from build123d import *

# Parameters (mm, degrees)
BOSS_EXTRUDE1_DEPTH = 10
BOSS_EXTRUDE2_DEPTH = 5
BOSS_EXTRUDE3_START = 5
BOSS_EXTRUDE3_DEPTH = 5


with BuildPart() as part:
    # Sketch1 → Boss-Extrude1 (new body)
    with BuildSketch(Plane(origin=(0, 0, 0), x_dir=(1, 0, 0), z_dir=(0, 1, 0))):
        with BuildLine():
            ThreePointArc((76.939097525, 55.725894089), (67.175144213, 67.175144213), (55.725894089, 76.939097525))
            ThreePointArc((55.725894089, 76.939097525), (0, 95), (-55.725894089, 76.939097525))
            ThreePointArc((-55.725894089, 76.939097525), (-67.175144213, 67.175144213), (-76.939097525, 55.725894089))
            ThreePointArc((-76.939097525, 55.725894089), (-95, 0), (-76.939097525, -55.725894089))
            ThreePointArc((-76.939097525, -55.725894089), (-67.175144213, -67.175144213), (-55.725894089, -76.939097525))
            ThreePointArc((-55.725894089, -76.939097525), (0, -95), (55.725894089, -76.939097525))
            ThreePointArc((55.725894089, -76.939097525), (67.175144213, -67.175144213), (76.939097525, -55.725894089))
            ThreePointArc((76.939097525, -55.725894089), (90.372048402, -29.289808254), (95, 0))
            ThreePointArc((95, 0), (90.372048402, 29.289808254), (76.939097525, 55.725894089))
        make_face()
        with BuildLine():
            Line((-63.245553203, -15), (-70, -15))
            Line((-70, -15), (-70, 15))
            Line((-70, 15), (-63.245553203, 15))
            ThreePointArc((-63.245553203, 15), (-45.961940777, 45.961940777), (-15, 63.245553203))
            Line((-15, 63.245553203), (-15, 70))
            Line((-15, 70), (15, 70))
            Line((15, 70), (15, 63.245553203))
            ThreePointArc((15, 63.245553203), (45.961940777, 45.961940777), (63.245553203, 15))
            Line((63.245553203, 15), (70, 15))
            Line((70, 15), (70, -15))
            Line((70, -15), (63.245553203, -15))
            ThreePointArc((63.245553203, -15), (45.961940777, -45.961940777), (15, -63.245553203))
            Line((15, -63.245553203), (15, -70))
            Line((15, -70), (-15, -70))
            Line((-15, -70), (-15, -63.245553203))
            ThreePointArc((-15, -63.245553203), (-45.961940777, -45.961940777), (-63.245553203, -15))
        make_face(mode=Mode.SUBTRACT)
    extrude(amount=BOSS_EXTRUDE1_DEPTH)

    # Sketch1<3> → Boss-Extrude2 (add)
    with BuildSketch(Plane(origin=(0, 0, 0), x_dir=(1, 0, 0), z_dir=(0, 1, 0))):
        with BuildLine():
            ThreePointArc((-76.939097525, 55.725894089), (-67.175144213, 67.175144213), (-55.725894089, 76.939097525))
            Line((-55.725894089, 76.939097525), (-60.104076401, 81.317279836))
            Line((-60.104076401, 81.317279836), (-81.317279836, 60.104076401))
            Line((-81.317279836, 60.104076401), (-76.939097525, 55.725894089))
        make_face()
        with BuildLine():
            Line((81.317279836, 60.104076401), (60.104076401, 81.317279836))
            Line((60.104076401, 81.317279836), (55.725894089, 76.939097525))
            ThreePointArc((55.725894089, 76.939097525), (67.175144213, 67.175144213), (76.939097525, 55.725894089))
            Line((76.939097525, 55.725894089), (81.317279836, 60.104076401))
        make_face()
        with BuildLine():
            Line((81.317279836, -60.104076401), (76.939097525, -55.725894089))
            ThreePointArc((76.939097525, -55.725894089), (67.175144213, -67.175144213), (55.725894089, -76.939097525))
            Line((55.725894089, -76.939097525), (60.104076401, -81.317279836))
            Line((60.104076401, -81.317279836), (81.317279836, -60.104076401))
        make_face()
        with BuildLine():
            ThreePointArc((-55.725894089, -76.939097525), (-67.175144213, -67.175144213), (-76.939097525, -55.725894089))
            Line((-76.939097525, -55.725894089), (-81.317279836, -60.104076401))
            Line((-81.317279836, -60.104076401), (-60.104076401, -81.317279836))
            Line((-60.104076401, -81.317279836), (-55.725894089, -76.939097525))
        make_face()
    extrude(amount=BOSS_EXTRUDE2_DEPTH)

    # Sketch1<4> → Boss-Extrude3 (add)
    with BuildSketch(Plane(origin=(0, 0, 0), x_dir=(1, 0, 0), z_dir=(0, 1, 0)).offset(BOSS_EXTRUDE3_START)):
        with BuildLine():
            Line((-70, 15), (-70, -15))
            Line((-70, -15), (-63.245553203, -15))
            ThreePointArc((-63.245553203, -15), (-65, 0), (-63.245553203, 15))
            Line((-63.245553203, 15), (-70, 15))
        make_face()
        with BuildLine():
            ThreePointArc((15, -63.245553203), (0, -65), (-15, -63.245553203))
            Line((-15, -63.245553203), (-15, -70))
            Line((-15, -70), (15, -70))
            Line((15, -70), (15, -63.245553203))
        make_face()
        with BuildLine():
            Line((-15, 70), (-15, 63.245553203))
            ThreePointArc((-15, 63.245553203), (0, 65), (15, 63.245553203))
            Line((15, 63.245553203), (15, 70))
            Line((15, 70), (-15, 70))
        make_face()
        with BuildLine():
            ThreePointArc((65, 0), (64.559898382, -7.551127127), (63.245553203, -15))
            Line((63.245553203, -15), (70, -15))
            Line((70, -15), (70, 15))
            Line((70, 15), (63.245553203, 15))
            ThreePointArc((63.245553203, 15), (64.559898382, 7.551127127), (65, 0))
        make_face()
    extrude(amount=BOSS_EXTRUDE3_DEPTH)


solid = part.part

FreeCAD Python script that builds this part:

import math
import FreeCAD as App
import Part
import Sketcher
from FreeCAD import Vector
Q = App.Units.Quantity

doc = App.newDocument("Part")
body = doc.addObject("PartDesign::Body", "Body")

# Sketch on XZ plane
sketch1 = body.newObject("Sketcher::SketchObject", "Sketch")
sketch1.AttachmentSupport = (doc.getObject("XZ_Plane"), [""])
sketch1.MapMode = "FlatFace"
sketch1.addGeometry([
    Part.ArcOfCircle(Part.Circle(Vector(0, 0, 0), Vector(0, 0, 1), 95), math.radians(-54.08), math.radians(-35.92)),  # 0
    Part.ArcOfCircle(Part.Circle(Vector(0, 0, 0), Vector(0, 0, 1), 95), math.radians(-126), math.radians(-54)),  # 1
    Part.ArcOfCircle(Part.Circle(Vector(0, 0, 0), Vector(0, 0, 1), 95), math.radians(-144.08), math.radians(-125.92)),  # 2
    Part.ArcOfCircle(Part.Circle(Vector(0, 0, 0), Vector(0, 0, 1), 95), math.radians(144), math.radians(216)),  # 3
    Part.ArcOfCircle(Part.Circle(Vector(0, 0, 0), Vector(0, 0, 1), 95), math.radians(125.92), math.radians(144.08)),  # 4
    Part.ArcOfCircle(Part.Circle(Vector(0, 0, 0), Vector(0, 0, 1), 95), math.radians(54), math.radians(126)),  # 5
    Part.ArcOfCircle(Part.Circle(Vector(0, 0, 0), Vector(0, 0, 1), 95), math.radians(35.92), math.radians(54.08)),  # 6
    Part.ArcOfCircle(Part.Circle(Vector(0, 0, 0), Vector(0, 0, 1), 95), math.radians(0), math.radians(36)),  # 7
    Part.ArcOfCircle(Part.Circle(Vector(0, 0, 0), Vector(0, 0, 1), 95), math.radians(-36), math.radians(0)),  # 8
    Part.ArcOfCircle(Part.Circle(Vector(0, 0, 0), Vector(0, 0, 1), 65), math.radians(103), math.radians(167)),  # 9
    Part.LineSegment(Vector(-63, 15, 0), Vector(-70, 15, 0)),  # 10
    Part.LineSegment(Vector(-70, 15, 0), Vector(-70, -15, 0)),  # 11
    Part.LineSegment(Vector(-70, -15, 0), Vector(-63, -15, 0)),  # 12
    Part.ArcOfCircle(Part.Circle(Vector(0, 0, 0), Vector(0, 0, 1), 65), math.radians(-167), math.radians(-103)),  # 13
    Part.LineSegment(Vector(-15, -63, 0), Vector(-15, -70, 0)),  # 14
    Part.LineSegment(Vector(-15, -70, 0), Vector(15, -70, 0)),  # 15
    Part.LineSegment(Vector(15, -70, 0), Vector(15, -63, 0)),  # 16
    Part.ArcOfCircle(Part.Circle(Vector(0, 0, 0), Vector(0, 0, 1), 65), math.radians(-77), math.radians(-13)),  # 17
    Part.LineSegment(Vector(63, -15, 0), Vector(70, -15, 0)),  # 18
    Part.LineSegment(Vector(70, -15, 0), Vector(70, 15, 0)),  # 19
    Part.LineSegment(Vector(70, 15, 0), Vector(63, 15, 0)),  # 20
    Part.ArcOfCircle(Part.Circle(Vector(0, 0, 0), Vector(0, 0, 1), 65), math.radians(13), math.radians(77)),  # 21
    Part.LineSegment(Vector(15, 63, 0), Vector(15, 70, 0)),  # 22
    Part.LineSegment(Vector(15, 70, 0), Vector(-15, 70, 0)),  # 23
    Part.LineSegment(Vector(-15, 70, 0), Vector(-15, 63, 0)),  # 24
], False)
sketch1.addConstraint([
    Sketcher.Constraint("Tangent", 0, 1, 1, 2),
    Sketcher.Constraint("Tangent", 1, 1, 2, 2),
    Sketcher.Constraint("Tangent", 2, 1, 3, 2),
    Sketcher.Constraint("Tangent", 3, 1, 4, 2),
    Sketcher.Constraint("Tangent", 4, 1, 5, 2),
    Sketcher.Constraint("Tangent", 5, 1, 6, 2),
    Sketcher.Constraint("Tangent", 6, 1, 7, 2),
    Sketcher.Constraint("Tangent", 7, 1, 8, 2),
    Sketcher.Constraint("Tangent", 8, 1, 0, 2),
    Sketcher.Constraint("Coincident", 9, 2, 10, 1),
    Sketcher.Constraint("Coincident", 10, 2, 11, 1),
    Sketcher.Constraint("Coincident", 11, 2, 12, 1),
    Sketcher.Constraint("Coincident", 12, 2, 13, 1),
    Sketcher.Constraint("Coincident", 13, 2, 14, 1),
    Sketcher.Constraint("Coincident", 14, 2, 15, 1),
    Sketcher.Constraint("Coincident", 15, 2, 16, 1),
    Sketcher.Constraint("Coincident", 16, 2, 17, 1),
    Sketcher.Constraint("Coincident", 17, 2, 18, 1),
    Sketcher.Constraint("Coincident", 18, 2, 19, 1),
    Sketcher.Constraint("Coincident", 19, 2, 20, 1),
    Sketcher.Constraint("Coincident", 20, 2, 21, 1),
    Sketcher.Constraint("Coincident", 21, 2, 22, 1),
    Sketcher.Constraint("Coincident", 22, 2, 23, 1),
    Sketcher.Constraint("Coincident", 23, 2, 24, 1),
    Sketcher.Constraint("Coincident", 24, 2, 9, 1),
    Sketcher.Constraint("Horizontal", 10),
    Sketcher.Constraint("Vertical", 11),
    Sketcher.Constraint("Horizontal", 12),
    Sketcher.Constraint("Vertical", 14),
    Sketcher.Constraint("Horizontal", 15),
    Sketcher.Constraint("Vertical", 16),
    Sketcher.Constraint("Horizontal", 18),
    Sketcher.Constraint("Vertical", 19),
    Sketcher.Constraint("Horizontal", 20),
    Sketcher.Constraint("Vertical", 22),
    Sketcher.Constraint("Horizontal", 23),
    Sketcher.Constraint("Vertical", 24),
    Sketcher.Constraint("Coincident", 0, 3, -1, 1),
    Sketcher.Constraint("Coincident", 2, 3, -1, 1),
    Sketcher.Constraint("Coincident", 4, 3, -1, 1),
    Sketcher.Constraint("Coincident", 6, 3, -1, 1),
    Sketcher.Constraint("Coincident", 9, 3, -1, 1),
    Sketcher.Constraint("Coincident", 13, 3, -1, 1),
    Sketcher.Constraint("Coincident", 17, 3, -1, 1),
    Sketcher.Constraint("Coincident", 21, 3, -1, 1),
    Sketcher.Constraint("Equal", 9, 13),
    Sketcher.Constraint("Equal", 13, 17),
    Sketcher.Constraint("Equal", 17, 21),
    Sketcher.Constraint("Symmetric", 10, 2, 18, 2, -1, 1),
    Sketcher.Constraint("Symmetric", 14, 2, 22, 2, -1, 1),
    Sketcher.Constraint("PointOnObject", 7, 1, -1),
    Sketcher.Constraint("Horizontal", 0, 1, 1, 1),
    Sketcher.Constraint("Horizontal", 4, 1, 5, 1),
    Sketcher.Constraint("Horizontal", 3, 1, 6, 1),
    Sketcher.Constraint("Horizontal", 2, 1, 8, 1),
    Sketcher.Constraint("Horizontal", 13, 2, 16, 2),
    Sketcher.Constraint("Horizontal", 12, 2, 17, 2),
    Sketcher.Constraint("Horizontal", 10, 2, 19, 2),
    Sketcher.Constraint("Horizontal", 21, 2, 24, 2),
    Sketcher.Constraint("Vertical", 2, 1, 3, 1),
    Sketcher.Constraint("Vertical", 1, 1, 4, 1),
    Sketcher.Constraint("Equal", 23, 11),
    Sketcher.Constraint("Equal", 20, 14),
    Sketcher.Constraint("Radius", 0, Q("95 mm")),
    Sketcher.Constraint("Radius", 9, Q("65 mm")),
    Sketcher.Constraint("DistanceX", 15, 1, 15, 2, Q("30 mm")),
    Sketcher.Constraint("DistanceX", 10, 2, -1, 1, Q("70 mm")),
    Sketcher.Constraint("DistanceX", 9, 2, 4, 1, Q("7.519659 mm")),
    Sketcher.Constraint("DistanceY", 13, 2, 2, 1, Q("7.519659 mm")),
])
pad1 = body.newObject("PartDesign::Pad", "Pad")
pad1.Profile = sketch1
pad1.Length = 10
pad1.Reversed = True

# Sketch on XZ plane
sketch2 = body.newObject("Sketcher::SketchObject", "Sketch001")
sketch2.AttachmentSupport = (doc.getObject("XZ_Plane"), [""])
sketch2.MapMode = "FlatFace"
sketch2.addGeometry([
    Part.ArcOfCircle(Part.Circle(Vector(0, 0, 0), Vector(0, 0, 1), 95), math.radians(-144.08), math.radians(-125.92)),  # 0
    Part.LineSegment(Vector(-56, -77, 0), Vector(-60, -81, 0)),  # 1
    Part.LineSegment(Vector(-60, -81, 0), Vector(-81, -60, 0)),  # 2
    Part.LineSegment(Vector(-81, -60, 0), Vector(-77, -56, 0)),  # 3
    Part.LineSegment(Vector(81, -60, 0), Vector(60, -81, 0)),  # 4
    Part.LineSegment(Vector(60, -81, 0), Vector(56, -77, 0)),  # 5
    Part.ArcOfCircle(Part.Circle(Vector(0, 0, 0), Vector(0, 0, 1), 95), math.radians(-54.08), math.radians(-35.92)),  # 6
    Part.LineSegment(Vector(77, -56, 0), Vector(81, -60, 0)),  # 7
    Part.LineSegment(Vector(81, 60, 0), Vector(77, 56, 0)),  # 8
    Part.ArcOfCircle(Part.Circle(Vector(0, 0, 0), Vector(0, 0, 1), 95), math.radians(35.92), math.radians(54.08)),  # 9
    Part.LineSegment(Vector(56, 77, 0), Vector(60, 81, 0)),  # 10
    Part.LineSegment(Vector(60, 81, 0), Vector(81, 60, 0)),  # 11
    Part.ArcOfCircle(Part.Circle(Vector(0, 0, 0), Vector(0, 0, 1), 95), math.radians(125.92), math.radians(144.08)),  # 12
    Part.LineSegment(Vector(-77, 56, 0), Vector(-81, 60, 0)),  # 13
    Part.LineSegment(Vector(-81, 60, 0), Vector(-60, 81, 0)),  # 14
    Part.LineSegment(Vector(-60, 81, 0), Vector(-56, 77, 0)),  # 15
], False)
sketch2.addConstraint([
    Sketcher.Constraint("Coincident", 0, 2, 1, 1),
    Sketcher.Constraint("Coincident", 1, 2, 2, 1),
    Sketcher.Constraint("Coincident", 2, 2, 3, 1),
    Sketcher.Constraint("Coincident", 3, 2, 0, 1),
    Sketcher.Constraint("Coincident", 4, 2, 5, 1),
    Sketcher.Constraint("Coincident", 5, 2, 6, 1),
    Sketcher.Constraint("Coincident", 6, 2, 7, 1),
    Sketcher.Constraint("Coincident", 7, 2, 4, 1),
    Sketcher.Constraint("Coincident", 8, 2, 9, 1),
    Sketcher.Constraint("Coincident", 9, 2, 10, 1),
    Sketcher.Constraint("Coincident", 10, 2, 11, 1),
    Sketcher.Constraint("Coincident", 11, 2, 8, 1),
    Sketcher.Constraint("Coincident", 12, 2, 13, 1),
    Sketcher.Constraint("Coincident", 13, 2, 14, 1),
    Sketcher.Constraint("Coincident", 14, 2, 15, 1),
    Sketcher.Constraint("Coincident", 15, 2, 12, 1),
    Sketcher.Constraint("Coincident", 0, 3, -1, 1),
    Sketcher.Constraint("Coincident", 6, 3, -1, 1),
    Sketcher.Constraint("Coincident", 9, 3, -1, 1),
    Sketcher.Constraint("Coincident", 12, 3, -1, 1),
    Sketcher.Constraint("Equal", 0, 6),
    Sketcher.Constraint("Equal", 6, 9),
    Sketcher.Constraint("Equal", 9, 12),
    Sketcher.Constraint("Symmetric", 1, 2, 10, 2, -1, 1),
    Sketcher.Constraint("Symmetric", 2, 2, 11, 2, -1, 1),
    Sketcher.Constraint("Symmetric", 7, 2, 13, 2, -1, 1),
    Sketcher.Constraint("Symmetric", 4, 2, 14, 2, -1, 1),
    Sketcher.Constraint("Symmetric", 1, 2, 4, 2, -2),
    Sketcher.Constraint("Symmetric", 2, 2, 7, 2, -2),
    Sketcher.Constraint("Perpendicular", 1, 2),
    Sketcher.Constraint("Perpendicular", 2, 3),
    Sketcher.Constraint("Parallel", 3, 4),
    Sketcher.Constraint("Perpendicular", 4, 5),
    Sketcher.Constraint("Parallel", 5, 7),
    Sketcher.Constraint("Perpendicular", 7, 8),
    Sketcher.Constraint("Parallel", 8, 10),
    Sketcher.Constraint("Parallel", 11, 13),
    Sketcher.Constraint("Perpendicular", 14, 15),
    Sketcher.Constraint("Equal", 1, 3),
    Sketcher.Constraint("Radius", 0, Q("95 mm")),
    Sketcher.Constraint("Distance", 2, Q("30 mm")),
    Sketcher.Constraint("DistanceY", 1, 2, -1, 1, Q("81.31728 mm")),
])
pad2 = body.newObject("PartDesign::Pad", "Pad001")
pad2.Profile = sketch2
pad2.Length = 5
pad2.Reversed = True

# Sketch on XZ plane
sketch3 = body.newObject("Sketcher::SketchObject", "Sketch002")
sketch3.AttachmentSupport = (doc.getObject("XZ_Plane"), [""])
sketch3.MapMode = "FlatFace"
sketch3.AttachmentOffset = App.Placement(Vector(0, 0, -5), App.Rotation())
sketch3.addGeometry([
    Part.LineSegment(Vector(-70, -15, 0), Vector(-70, 15, 0)),  # 0
    Part.LineSegment(Vector(-70, 15, 0), Vector(-63, 15, 0)),  # 1
    Part.ArcOfCircle(Part.Circle(Vector(0, 0, 0), Vector(0, 0, 1), 65), math.radians(167), math.radians(193)),  # 2
    Part.LineSegment(Vector(-63, -15, 0), Vector(-70, -15, 0)),  # 3
    Part.ArcOfCircle(Part.Circle(Vector(0, 0, 0), Vector(0, 0, 1), 65), math.radians(77), math.radians(103)),  # 4
    Part.LineSegment(Vector(-15, 63, 0), Vector(-15, 70, 0)),  # 5
    Part.LineSegment(Vector(-15, 70, 0), Vector(15, 70, 0)),  # 6
    Part.LineSegment(Vector(15, 70, 0), Vector(15, 63, 0)),  # 7
    Part.LineSegment(Vector(-15, -70, 0), Vector(-15, -63, 0)),  # 8
    Part.ArcOfCircle(Part.Circle(Vector(0, 0, 0), Vector(0, 0, 1), 65), math.radians(-103), math.radians(-77)),  # 9
    Part.LineSegment(Vector(15, -63, 0), Vector(15, -70, 0)),  # 10
    Part.LineSegment(Vector(15, -70, 0), Vector(-15, -70, 0)),  # 11
    Part.ArcOfCircle(Part.Circle(Vector(0, 0, 0), Vector(0, 0, 1), 65), math.radians(0), math.radians(13.34)),  # 12
    Part.LineSegment(Vector(63, 15, 0), Vector(70, 15, 0)),  # 13
    Part.LineSegment(Vector(70, 15, 0), Vector(70, -15, 0)),  # 14
    Part.LineSegment(Vector(70, -15, 0), Vector(63, -15, 0)),  # 15
    Part.ArcOfCircle(Part.Circle(Vector(0, 0, 0), Vector(0, 0, 1), 65), math.radians(-13.34), math.radians(0)),  # 16
], False)
sketch3.addConstraint([
    Sketcher.Constraint("Coincident", 0, 2, 1, 1),
    Sketcher.Constraint("Coincident", 1, 2, 2, 1),
    Sketcher.Constraint("Coincident", 2, 2, 3, 1),
    Sketcher.Constraint("Coincident", 3, 2, 0, 1),
    Sketcher.Constraint("Coincident", 4, 2, 5, 1),
    Sketcher.Constraint("Coincident", 5, 2, 6, 1),
    Sketcher.Constraint("Coincident", 6, 2, 7, 1),
    Sketcher.Constraint("Coincident", 7, 2, 4, 1),
    Sketcher.Constraint("Coincident", 8, 2, 9, 1),
    Sketcher.Constraint("Coincident", 9, 2, 10, 1),
    Sketcher.Constraint("Coincident", 10, 2, 11, 1),
    Sketcher.Constraint("Coincident", 11, 2, 8, 1),
    Sketcher.Constraint("Coincident", 12, 2, 13, 1),
    Sketcher.Constraint("Coincident", 13, 2, 14, 1),
    Sketcher.Constraint("Coincident", 14, 2, 15, 1),
    Sketcher.Constraint("Coincident", 15, 2, 16, 1),
    Sketcher.Constraint("Tangent", 16, 2, 12, 1),
    Sketcher.Constraint("Vertical", 0),
    Sketcher.Constraint("Horizontal", 1),
    Sketcher.Constraint("Horizontal", 3),
    Sketcher.Constraint("Vertical", 5),
    Sketcher.Constraint("Horizontal", 6),
    Sketcher.Constraint("Vertical", 7),
    Sketcher.Constraint("Vertical", 8),
    Sketcher.Constraint("Vertical", 10),
    Sketcher.Constraint("Horizontal", 11),
    Sketcher.Constraint("Horizontal", 13),
    Sketcher.Constraint("Vertical", 14),
    Sketcher.Constraint("Horizontal", 15),
    Sketcher.Constraint("Coincident", 2, 3, -1, 1),
    Sketcher.Constraint("Coincident", 4, 3, -1, 1),
    Sketcher.Constraint("Coincident", 9, 3, -1, 1),
    Sketcher.Constraint("Coincident", 12, 3, -1, 1),
    Sketcher.Constraint("Equal", 2, 4),
    Sketcher.Constraint("Equal", 4, 9),
    Sketcher.Constraint("Equal", 9, 12),
    Sketcher.Constraint("Equal", 12, 16),
    Sketcher.Constraint("Symmetric", 5, 2, 10, 2, -1, 1),
    Sketcher.Constraint("Symmetric", 3, 2, 13, 2, -1, 1),
    Sketcher.Constraint("PointOnObject", 16, 2, -1),
    Sketcher.Constraint("Horizontal", 4, 2, 7, 2),
    Sketcher.Constraint("Horizontal", 8, 2, 9, 2),
    Sketcher.Constraint("Horizontal", 1, 2, 12, 2),
    Sketcher.Constraint("Horizontal", 3, 2, 14, 2),
    Sketcher.Constraint("Equal", 11, 0),
    Sketcher.Constraint("Equal", 15, 5),
    Sketcher.Constraint("Radius", 2, Q("65 mm")),
    Sketcher.Constraint("DistanceX", 6, 1, 6, 2, Q("30 mm")),
    Sketcher.Constraint("DistanceX", 0, 2, -1, 1, Q("70 mm")),
])
pad3 = body.newObject("PartDesign::Pad", "Pad002")
pad3.Profile = sketch3
pad3.Length = 5
pad3.Reversed = True

doc.recompute()
